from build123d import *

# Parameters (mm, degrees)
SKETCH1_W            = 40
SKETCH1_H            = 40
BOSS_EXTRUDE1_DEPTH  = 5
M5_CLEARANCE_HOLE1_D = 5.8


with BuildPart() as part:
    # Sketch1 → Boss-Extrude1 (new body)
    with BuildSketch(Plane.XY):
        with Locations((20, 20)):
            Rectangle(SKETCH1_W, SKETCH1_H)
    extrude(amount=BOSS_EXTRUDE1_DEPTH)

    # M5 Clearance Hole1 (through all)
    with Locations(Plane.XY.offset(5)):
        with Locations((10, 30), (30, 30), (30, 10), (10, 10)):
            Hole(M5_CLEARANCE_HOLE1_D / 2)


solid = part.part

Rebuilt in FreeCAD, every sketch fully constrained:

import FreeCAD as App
import Part
import Sketcher


def add_polygon(sketch, points):
    """Adds a closed chain of lines whose ends are joined by coincident constraints."""
    first, n = sketch.GeometryCount, len(points)
    for a, b in zip(points, points[1:] + points[:1]):
        sketch.addGeometry(Part.LineSegment(App.Vector(*a, 0), App.Vector(*b, 0)), False)
    for i in range(n):
        sketch.addConstraint(Sketcher.Constraint("Coincident", first + i, 2, first + (i + 1) % n, 1))

doc = App.newDocument("Part")
params = doc.addObject("Spreadsheet::Sheet", "Params")
for row, (alias, value) in enumerate([
    ("sketch1_width", "40 mm"),
    ("pad1_length", "5 mm"),
    ("sketch2_diameter", "5.8 mm"),
    ("hole_diameter", "5.8 mm"),
], start=1):
    params.set(f"A{row}", alias)
    params.set(f"B{row}", "=" + value)
    params.setAlias(f"B{row}", alias)

body = doc.addObject("PartDesign::Body", "Body")

sketch1 = body.newObject("Sketcher::SketchObject", "Sketch")
sketch1.AttachmentSupport = (doc.getObject("XY_Plane"), [""])
sketch1.MapMode = "FlatFace"
add_polygon(sketch1, [(0, 40), (0, 0), (40, 0), (40, 40)])
sketch1.addConstraint([
    Sketcher.Constraint("Vertical", 0),
    Sketcher.Constraint("Horizontal", 1),
    Sketcher.Constraint("Vertical", 2),
    Sketcher.Constraint("Horizontal", 3),
    Sketcher.Constraint("Coincident", 0, 2, -1, 1),
    Sketcher.Constraint("Equal", 3, 0),
    Sketcher.Constraint("DistanceX", 1, 1, 1, 2, 40.0),
])
sketch1.setExpression("Constraints[10]", "Params.sketch1_width")
pad1 = body.newObject("PartDesign::Pad", "Pad")
pad1.Profile = sketch1
pad1.setExpression("Length", "Params.pad1_length")

sketch2 = body.newObject("Sketcher::SketchObject", "Sketch001")
sketch2.AttachmentSupport = (doc.getObject("XY_Plane"), [""])
sketch2.MapMode = "FlatFace"
sketch2.AttachmentOffset = App.Placement(App.Vector(0, 0, 5), App.Rotation())
sketch2.addGeometry([
    Part.Circle(App.Vector(10, 30, 0), App.Vector(0, 0, 1), 2.9),
    Part.Circle(App.Vector(30, 30, 0), App.Vector(0, 0, 1), 2.9),
    Part.Circle(App.Vector(30, 10, 0), App.Vector(0, 0, 1), 2.9),
    Part.Circle(App.Vector(10, 10, 0), App.Vector(0, 0, 1), 2.9),
], False)
sketch2.addConstraint([
    Sketcher.Constraint("Equal", 0, 1),
    Sketcher.Constraint("Equal", 1, 2),
    Sketcher.Constraint("Equal", 2, 3),
    Sketcher.Constraint("Horizontal", 0, 3, 1, 3),
    Sketcher.Constraint("Horizontal", 2, 3, 3, 3),
    Sketcher.Constraint("Vertical", 1, 3, 2, 3),
    Sketcher.Constraint("Vertical", 0, 3, 3, 3),
    Sketcher.Constraint("Diameter", 0, 5.8),
    Sketcher.Constraint("DistanceX", -1, 1, 0, 3, 10.0),
    Sketcher.Constraint("DistanceY", -1, 1, 0, 3, 30.0),
    Sketcher.Constraint("DistanceX", -1, 1, 1, 3, 30.0),
    Sketcher.Constraint("DistanceY", -1, 1, 2, 3, 10.0),
])
sketch2.setExpression("Constraints[7]", "Params.sketch2_diameter")
doc.recompute()
hole = body.newObject("PartDesign::Hole", "Hole")
hole.Profile = sketch2
hole.ThreadType = "None"
hole.setExpression("Diameter", "Params.hole_diameter")
hole.DepthType = "ThroughAll"

doc.recompute()
